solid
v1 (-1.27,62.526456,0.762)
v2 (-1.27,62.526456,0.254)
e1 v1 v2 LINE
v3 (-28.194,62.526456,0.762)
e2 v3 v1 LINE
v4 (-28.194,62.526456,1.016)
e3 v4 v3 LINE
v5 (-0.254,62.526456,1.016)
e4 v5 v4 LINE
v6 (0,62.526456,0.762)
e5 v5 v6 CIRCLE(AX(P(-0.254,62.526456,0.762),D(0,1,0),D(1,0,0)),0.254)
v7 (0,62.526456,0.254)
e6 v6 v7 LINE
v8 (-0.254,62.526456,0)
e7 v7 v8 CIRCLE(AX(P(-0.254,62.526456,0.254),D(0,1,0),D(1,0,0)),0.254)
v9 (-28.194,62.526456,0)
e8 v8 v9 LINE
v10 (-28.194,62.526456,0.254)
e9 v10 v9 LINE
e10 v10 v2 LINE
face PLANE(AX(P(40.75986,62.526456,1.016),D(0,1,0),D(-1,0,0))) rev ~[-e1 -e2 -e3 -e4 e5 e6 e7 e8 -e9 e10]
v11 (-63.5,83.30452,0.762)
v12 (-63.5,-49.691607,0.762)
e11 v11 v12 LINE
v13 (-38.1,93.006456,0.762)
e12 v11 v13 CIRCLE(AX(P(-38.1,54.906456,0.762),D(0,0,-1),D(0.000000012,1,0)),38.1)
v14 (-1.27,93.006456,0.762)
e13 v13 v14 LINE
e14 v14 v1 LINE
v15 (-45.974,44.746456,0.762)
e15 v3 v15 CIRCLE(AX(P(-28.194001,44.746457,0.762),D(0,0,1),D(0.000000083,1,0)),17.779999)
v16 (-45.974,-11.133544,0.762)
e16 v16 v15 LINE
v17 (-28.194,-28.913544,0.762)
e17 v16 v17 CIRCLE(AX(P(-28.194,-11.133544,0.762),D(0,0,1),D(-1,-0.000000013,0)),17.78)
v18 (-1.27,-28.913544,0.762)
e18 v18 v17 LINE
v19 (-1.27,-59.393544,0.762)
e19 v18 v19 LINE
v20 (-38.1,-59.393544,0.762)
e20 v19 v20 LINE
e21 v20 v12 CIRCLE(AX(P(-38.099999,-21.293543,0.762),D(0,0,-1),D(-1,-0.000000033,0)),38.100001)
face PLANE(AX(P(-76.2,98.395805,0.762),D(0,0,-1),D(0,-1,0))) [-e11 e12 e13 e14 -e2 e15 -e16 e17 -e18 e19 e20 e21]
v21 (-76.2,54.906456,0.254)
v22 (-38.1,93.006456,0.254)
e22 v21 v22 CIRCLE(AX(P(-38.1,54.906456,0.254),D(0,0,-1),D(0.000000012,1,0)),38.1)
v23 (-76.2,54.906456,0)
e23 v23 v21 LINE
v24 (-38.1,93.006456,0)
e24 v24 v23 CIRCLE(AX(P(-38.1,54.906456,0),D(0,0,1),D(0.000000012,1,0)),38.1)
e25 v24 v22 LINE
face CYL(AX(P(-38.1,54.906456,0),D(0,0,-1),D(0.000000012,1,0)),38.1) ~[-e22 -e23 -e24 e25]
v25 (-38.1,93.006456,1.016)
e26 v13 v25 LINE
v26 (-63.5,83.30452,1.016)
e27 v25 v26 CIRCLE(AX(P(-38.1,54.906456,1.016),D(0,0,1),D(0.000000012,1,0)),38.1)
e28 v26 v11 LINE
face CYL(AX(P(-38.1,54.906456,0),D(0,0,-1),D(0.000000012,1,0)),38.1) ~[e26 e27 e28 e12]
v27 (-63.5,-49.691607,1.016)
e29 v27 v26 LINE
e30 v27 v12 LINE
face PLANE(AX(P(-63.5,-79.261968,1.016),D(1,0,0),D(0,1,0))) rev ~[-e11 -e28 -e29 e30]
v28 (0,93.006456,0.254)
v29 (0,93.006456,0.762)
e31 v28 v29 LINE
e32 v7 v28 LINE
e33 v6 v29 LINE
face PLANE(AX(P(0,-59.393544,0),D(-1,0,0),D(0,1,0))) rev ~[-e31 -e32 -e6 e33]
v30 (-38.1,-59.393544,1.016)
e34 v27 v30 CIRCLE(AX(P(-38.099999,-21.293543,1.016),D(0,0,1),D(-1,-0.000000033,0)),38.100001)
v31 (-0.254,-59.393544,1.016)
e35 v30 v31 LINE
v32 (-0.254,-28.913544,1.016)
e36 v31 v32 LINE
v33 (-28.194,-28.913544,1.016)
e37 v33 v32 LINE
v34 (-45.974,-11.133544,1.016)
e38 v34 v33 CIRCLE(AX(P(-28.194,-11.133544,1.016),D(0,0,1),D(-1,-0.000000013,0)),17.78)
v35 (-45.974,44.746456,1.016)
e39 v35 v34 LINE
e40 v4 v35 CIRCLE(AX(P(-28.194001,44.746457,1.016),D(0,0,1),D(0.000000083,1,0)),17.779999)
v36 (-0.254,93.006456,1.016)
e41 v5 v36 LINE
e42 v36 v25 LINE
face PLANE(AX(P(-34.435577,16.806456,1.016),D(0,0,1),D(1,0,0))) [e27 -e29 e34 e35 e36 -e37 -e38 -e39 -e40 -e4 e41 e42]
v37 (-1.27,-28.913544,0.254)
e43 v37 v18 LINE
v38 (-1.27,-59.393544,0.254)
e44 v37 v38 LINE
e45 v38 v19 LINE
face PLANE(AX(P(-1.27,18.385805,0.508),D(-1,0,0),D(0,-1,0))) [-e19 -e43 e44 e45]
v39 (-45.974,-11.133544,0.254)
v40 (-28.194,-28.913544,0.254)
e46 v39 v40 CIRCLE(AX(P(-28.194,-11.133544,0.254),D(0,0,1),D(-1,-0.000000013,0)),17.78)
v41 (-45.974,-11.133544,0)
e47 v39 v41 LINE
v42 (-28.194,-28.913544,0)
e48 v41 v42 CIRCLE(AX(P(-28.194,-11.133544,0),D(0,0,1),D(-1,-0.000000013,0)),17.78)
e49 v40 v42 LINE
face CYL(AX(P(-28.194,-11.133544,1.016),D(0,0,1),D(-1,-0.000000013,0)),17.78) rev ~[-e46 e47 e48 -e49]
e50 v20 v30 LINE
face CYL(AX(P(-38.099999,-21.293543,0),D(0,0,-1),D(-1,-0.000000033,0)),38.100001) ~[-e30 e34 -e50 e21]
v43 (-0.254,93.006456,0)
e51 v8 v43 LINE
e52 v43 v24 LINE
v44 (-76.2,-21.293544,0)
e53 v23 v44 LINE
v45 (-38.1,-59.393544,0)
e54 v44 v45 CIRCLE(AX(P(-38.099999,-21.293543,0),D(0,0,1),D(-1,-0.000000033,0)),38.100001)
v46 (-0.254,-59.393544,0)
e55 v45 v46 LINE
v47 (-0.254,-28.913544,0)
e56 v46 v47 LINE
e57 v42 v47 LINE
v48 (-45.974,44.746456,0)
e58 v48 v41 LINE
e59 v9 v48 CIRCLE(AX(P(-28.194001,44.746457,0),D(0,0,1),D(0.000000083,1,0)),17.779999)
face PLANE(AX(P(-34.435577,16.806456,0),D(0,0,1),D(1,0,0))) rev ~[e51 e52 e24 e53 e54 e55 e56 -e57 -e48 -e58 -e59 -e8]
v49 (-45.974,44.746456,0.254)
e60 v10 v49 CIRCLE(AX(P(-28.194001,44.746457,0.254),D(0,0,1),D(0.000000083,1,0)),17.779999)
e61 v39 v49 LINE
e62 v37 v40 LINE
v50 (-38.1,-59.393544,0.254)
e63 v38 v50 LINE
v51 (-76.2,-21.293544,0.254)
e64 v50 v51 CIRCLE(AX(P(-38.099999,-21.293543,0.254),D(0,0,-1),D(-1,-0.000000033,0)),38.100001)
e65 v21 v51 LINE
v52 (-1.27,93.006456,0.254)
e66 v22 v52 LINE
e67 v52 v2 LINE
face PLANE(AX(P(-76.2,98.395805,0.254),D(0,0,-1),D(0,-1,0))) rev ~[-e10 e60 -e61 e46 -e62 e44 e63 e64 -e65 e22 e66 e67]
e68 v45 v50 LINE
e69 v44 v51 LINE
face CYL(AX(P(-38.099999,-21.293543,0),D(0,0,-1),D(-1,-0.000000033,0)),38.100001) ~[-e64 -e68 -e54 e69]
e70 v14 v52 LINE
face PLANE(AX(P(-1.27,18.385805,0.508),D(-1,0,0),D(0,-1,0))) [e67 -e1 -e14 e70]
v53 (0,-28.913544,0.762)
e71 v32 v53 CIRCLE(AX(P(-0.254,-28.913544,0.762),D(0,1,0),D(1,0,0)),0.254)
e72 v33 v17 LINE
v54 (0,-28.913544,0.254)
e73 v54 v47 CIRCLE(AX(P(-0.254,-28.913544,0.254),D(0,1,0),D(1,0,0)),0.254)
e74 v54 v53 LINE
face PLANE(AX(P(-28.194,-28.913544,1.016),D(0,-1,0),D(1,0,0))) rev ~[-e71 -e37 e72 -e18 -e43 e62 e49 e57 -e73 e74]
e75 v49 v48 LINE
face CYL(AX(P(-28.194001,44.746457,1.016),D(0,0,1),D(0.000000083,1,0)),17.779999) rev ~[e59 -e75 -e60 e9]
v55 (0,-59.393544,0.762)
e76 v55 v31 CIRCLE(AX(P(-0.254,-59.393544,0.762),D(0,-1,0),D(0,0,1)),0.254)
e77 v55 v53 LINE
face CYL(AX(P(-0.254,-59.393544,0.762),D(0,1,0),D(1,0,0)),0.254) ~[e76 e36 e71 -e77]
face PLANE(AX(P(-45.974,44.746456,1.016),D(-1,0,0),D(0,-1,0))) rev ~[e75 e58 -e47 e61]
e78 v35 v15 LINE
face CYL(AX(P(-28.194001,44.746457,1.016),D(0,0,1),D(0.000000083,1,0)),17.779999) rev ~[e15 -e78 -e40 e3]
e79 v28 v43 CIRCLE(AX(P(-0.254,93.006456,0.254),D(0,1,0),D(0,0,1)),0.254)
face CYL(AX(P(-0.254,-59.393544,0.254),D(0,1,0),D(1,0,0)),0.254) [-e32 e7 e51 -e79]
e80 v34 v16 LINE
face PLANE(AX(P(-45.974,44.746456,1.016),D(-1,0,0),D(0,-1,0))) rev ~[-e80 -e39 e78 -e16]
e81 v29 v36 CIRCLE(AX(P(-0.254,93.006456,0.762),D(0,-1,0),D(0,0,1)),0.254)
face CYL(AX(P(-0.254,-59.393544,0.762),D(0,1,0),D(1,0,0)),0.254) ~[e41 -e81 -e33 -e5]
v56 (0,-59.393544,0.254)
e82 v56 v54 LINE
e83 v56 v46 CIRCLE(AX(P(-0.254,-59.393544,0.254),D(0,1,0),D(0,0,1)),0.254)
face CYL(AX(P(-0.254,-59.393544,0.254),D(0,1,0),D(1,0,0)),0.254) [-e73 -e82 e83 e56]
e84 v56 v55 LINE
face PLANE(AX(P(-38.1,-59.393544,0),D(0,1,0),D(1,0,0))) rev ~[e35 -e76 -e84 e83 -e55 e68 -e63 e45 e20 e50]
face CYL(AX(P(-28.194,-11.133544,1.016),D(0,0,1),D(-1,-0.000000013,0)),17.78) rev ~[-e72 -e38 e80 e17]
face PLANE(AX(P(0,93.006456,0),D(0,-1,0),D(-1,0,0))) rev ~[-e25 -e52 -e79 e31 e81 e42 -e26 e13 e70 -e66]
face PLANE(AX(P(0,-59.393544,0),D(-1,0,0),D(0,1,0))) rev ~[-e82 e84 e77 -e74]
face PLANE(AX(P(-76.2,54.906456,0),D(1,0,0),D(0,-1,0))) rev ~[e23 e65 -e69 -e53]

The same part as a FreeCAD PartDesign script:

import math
import FreeCAD as App
import Part
import Sketcher
from FreeCAD import Vector
Q = App.Units.Quantity


def edges_at(feature, points):
    """Names of the edges that pass closest to the given points."""
    edges = feature.Shape.Edges
    near = lambda p: min(range(len(edges)), key=lambda i: edges[i].distToShape(Part.Vertex(*p))[0])
    return sorted({f"Edge{near(p) + 1}" for p in points})


def add_polygon(sketch, points):
    """Adds a closed chain of lines whose ends are joined by coincident constraints."""
    first, n = sketch.GeometryCount, len(points)
    for a, b in zip(points, points[1:] + points[:1]):
        sketch.addGeometry(Part.LineSegment(App.Vector(*a, 0), App.Vector(*b, 0)), False)
    for i in range(n):
        sketch.addConstraint(Sketcher.Constraint("Coincident", first + i, 2, first + (i + 1) % n, 1))

doc = App.newDocument("Part")
params = doc.addObject("Spreadsheet::Sheet", "Params")
for row, (alias, value) in enumerate([
    ("sketch1_radius", "1.5 in"),
    ("sketch1_height", "6 in"),
    ("sketch1_width", "1.5 in"),
    ("pad1_length", "0.04 in"),
    ("sketch2_width", "6.3 in"),
    ("sketch2_height", "0.02 in"),
    ("pocket1_length", "2.95 in"),
    ("pocket2_length", "0.02 in"),
    ("fillet_radius", "0.01 in"),
    ("fillet2_radius", "0.01 in"),
    ("sketch4_radius", "0.6999999 in"),
    ("sketch4_height", "2.2 in"),
], start=1):
    params.set(f"A{row}", alias)
    params.set(f"B{row}", "=" + value)
    params.setAlias(f"B{row}", alias)

body = doc.addObject("PartDesign::Body", "Body")

# Sketch on XY plane
sketch1 = doc.addObject("Sketcher::SketchObject", "Sketch")
body.addObject(sketch1)
sketch1.AttachmentSupport = (doc.XY_Plane, [""])
sketch1.MapMode = "FlatFace"
sketch1.addGeometry([
    Part.LineSegment(Vector(0, -59.393544, 0), Vector(0, 93.006456, 0)),  # 0
    Part.LineSegment(Vector(0, 93.006456, 0), Vector(-38.1, 93.006456, 0)),  # 1
    Part.ArcOfCircle(Part.Circle(Vector(-38.1, 54.906456, 0), Vector(0, 0, 1), 38.1), math.radians(89.999999), math.radians(180.000001)),  # 2
    Part.LineSegment(Vector(-76.2, 54.906456, 0), Vector(-76.2, -21.293544, 0)),  # 3
    Part.ArcOfCircle(Part.Circle(Vector(-38.099999, -21.293543, 0), Vector(0, 0, 1), 38.100001), math.radians(-179.999998), math.radians(-90.000002)),  # 4
    Part.LineSegment(Vector(-38.1, -59.393544, 0), Vector(0, -59.393544, 0)),  # 5
], False)
sketch1.addConstraint([
    Sketcher.Constraint("Coincident", 0, 2, 1, 1),
    Sketcher.Constraint("Tangent", 1, 2, 2, 1),
    Sketcher.Constraint("Tangent", 2, 2, 3, 1),
    Sketcher.Constraint("Tangent", 3, 2, 4, 1),
    Sketcher.Constraint("Tangent", 4, 2, 5, 1),
    Sketcher.Constraint("Coincident", 5, 2, 0, 1),
    Sketcher.Constraint("Vertical", 0),
    Sketcher.Constraint("Horizontal", 1),
    Sketcher.Constraint("Vertical", 3),
    Sketcher.Constraint("Horizontal", 5),
    Sketcher.Constraint("Equal", 2, 4),
    Sketcher.Constraint("PointOnObject", 0, 2, -2),
    Sketcher.Constraint("Radius", 2, Q("1.5 in")),
    Sketcher.Constraint("DistanceY", 0, 1, 0, 2, Q("6 in")),
    Sketcher.Constraint("DistanceX", 1, 2, 1, 1, Q("1.5 in")),
    Sketcher.Constraint("DistanceY", -1, 1, 2, 3, 54.906456),
])
sketch1.setExpression("Constraints[12]", "Params.sketch1_radius")
sketch1.setExpression("Constraints[13]", "Params.sketch1_height")
sketch1.setExpression("Constraints[14]", "Params.sketch1_width")
pad1 = doc.addObject("PartDesign::Pad", "Pad")
body.addObject(pad1)
pad1.Profile = sketch1
pad1.setExpression("Length", "Params.pad1_length")

# Sketch on YZ plane
sketch2 = doc.addObject("Sketcher::SketchObject", "Sketch001")
body.addObject(sketch2)
sketch2.AttachmentSupport = (doc.YZ_Plane, [""])
sketch2.MapMode = "FlatFace"
sketch2.AttachmentOffset = App.Placement(Vector(0, 0, -3 * 25.4), App.Rotation())
add_polygon(sketch2, [(98.395805, 0.762), (98.395805, 0.254), (-61.624195, 0.254), (-61.624195, 0.762)])  # lines 0-3
sketch2.addConstraint([
    Sketcher.Constraint("Vertical", 0),
    Sketcher.Constraint("Horizontal", 1),
    Sketcher.Constraint("Vertical", 2),
    Sketcher.Constraint("Horizontal", 3),
    Sketcher.Constraint("DistanceX", 1, 2, 1, 1, Q("6.3 in")),
    Sketcher.Constraint("DistanceY", 0, 2, 0, 1, Q("0.02 in")),
    Sketcher.Constraint("DistanceY", -1, 1, 0, 2, Q("0.01 in")),
    Sketcher.Constraint("DistanceX", -1, 1, 0, 2, 98.395805),
])
sketch2.setExpression("Constraints[8]", "Params.sketch2_width")
sketch2.setExpression("Constraints[9]", "Params.sketch2_height")
pocket1 = doc.addObject("PartDesign::Pocket", "Pocket")
body.addObject(pocket1)
pocket1.Profile = sketch2
pocket1.setExpression("Length", "Params.pocket1_length")
pocket1.Reversed = True

# Sketch on XY plane
sketch3 = doc.addObject("Sketcher::SketchObject", "Sketch002")
body.addObject(sketch3)
sketch3.AttachmentSupport = (doc.XY_Plane, [""])
sketch3.MapMode = "FlatFace"
sketch3.AttachmentOffset = App.Placement(Vector(0, 0, 0.04 * 25.4), App.Rotation())
add_polygon(sketch3, [(-98.201408, 105.335215), (-98.201408, -79.261968), (-63.5, -79.261968), (-63.5, 105.335215)])  # lines 0-3
sketch3.addConstraint([
    Sketcher.Constraint("Vertical", 0),
    Sketcher.Constraint("Horizontal", 1),
    Sketcher.Constraint("Vertical", 2),
    Sketcher.Constraint("Horizontal", 3),
    Sketcher.Constraint("DistanceX", 1, 2, -1, 1, Q("2.5 in")),
    Sketcher.Constraint("DistanceX", 1, 1, 1, 2, 34.701408),
    Sketcher.Constraint("DistanceY", 0, 2, 0, 1, 184.597183),
    Sketcher.Constraint("DistanceY", 0, 2, -1, 1, 79.261968),
])
pocket2 = doc.addObject("PartDesign::Pocket", "Pocket001")
body.addObject(pocket2)
pocket2.Profile = sketch3
pocket2.setExpression("Length", "Params.pocket2_length")
doc.recompute()

fillet = doc.addObject("PartDesign::Fillet", "Fillet")
body.addObject(fillet)
fillet.Base = (pocket2, edges_at(pocket2, [(0, 16.806, 1.016)]))
fillet.setExpression("Radius", "Params.fillet_radius")
doc.recompute()

fillet2 = doc.addObject("PartDesign::Fillet", "Fillet001")
body.addObject(fillet2)
fillet2.Base = (fillet, edges_at(fillet, [(0, 16.806, 0)]))
fillet2.setExpression("Radius", "Params.fillet2_radius")

# Sketch on XY plane
sketch4 = doc.addObject("Sketcher::SketchObject", "Sketch003")
body.addObject(sketch4)
sketch4.AttachmentSupport = (doc.XY_Plane, [""])
sketch4.MapMode = "FlatFace"
sketch4.AttachmentOffset = App.Placement(Vector(0, 0, 0.04 * 25.4), App.Rotation())
sketch4.addGeometry([
    Part.LineSegment(Vector(40.75986, 62.526456, 0), Vector(-28.194, 62.526456, 0)),  # 0
    Part.ArcOfCircle(Part.Circle(Vector(-28.194001, 44.746457, 0), Vector(0, 0, 1), 17.779999), math.radians(89.999995), math.radians(180.000005)),  # 1
    Part.LineSegment(Vector(-45.974, 44.746456, 0), Vector(-45.974, -11.133544, 0)),  # 2
    Part.ArcOfCircle(Part.Circle(Vector(-28.194, -11.133544, 0), Vector(0, 0, 1), 17.78), math.radians(-179.999999), math.radians(-90.000001)),  # 3
    Part.LineSegment(Vector(-28.194, -28.913544, 0), Vector(40.75986, -28.913544, 0)),  # 4
    Part.LineSegment(Vector(40.75986, -28.913544, 0), Vector(40.75986, 62.526456, 0)),  # 5
], False)
sketch4.addConstraint([
    Sketcher.Constraint("Tangent", 0, 2, 1, 1),
    Sketcher.Constraint("Tangent", 1, 2, 2, 1),
    Sketcher.Constraint("Tangent", 2, 2, 3, 1),
    Sketcher.Constraint("Tangent", 3, 2, 4, 1),
    Sketcher.Constraint("Coincident", 4, 2, 5, 1),
    Sketcher.Constraint("Coincident", 5, 2, 0, 1),
    Sketcher.Constraint("Horizontal", 0),
    Sketcher.Constraint("Vertical", 2),
    Sketcher.Constraint("Horizontal", 4),
    Sketcher.Constraint("Vertical", 5),
    Sketcher.Constraint("Equal", 1, 3),
    Sketcher.Constraint("Radius", 1, Q("0.6999999 in")),
    Sketcher.Constraint("DistanceY", 2, 2, 2, 1, Q("2.2 in")),
    Sketcher.Constraint("DistanceX", 1, 3, -1, 1, Q("1.1100001 in")),
    Sketcher.Constraint("DistanceX", 0, 2, 0, 1, 68.95386),
    Sketcher.Constraint("DistanceY", -1, 1, 1, 3, 44.746457),
])
sketch4.setExpression("Constraints[11]", "Params.sketch4_radius")
sketch4.setExpression("Constraints[12]", "Params.sketch4_height")
pocket3 = doc.addObject("PartDesign::Pocket", "Pocket002")
body.addObject(pocket3)
pocket3.Profile = sketch4
pocket3.Type = "ThroughAll"

doc.recompute()
